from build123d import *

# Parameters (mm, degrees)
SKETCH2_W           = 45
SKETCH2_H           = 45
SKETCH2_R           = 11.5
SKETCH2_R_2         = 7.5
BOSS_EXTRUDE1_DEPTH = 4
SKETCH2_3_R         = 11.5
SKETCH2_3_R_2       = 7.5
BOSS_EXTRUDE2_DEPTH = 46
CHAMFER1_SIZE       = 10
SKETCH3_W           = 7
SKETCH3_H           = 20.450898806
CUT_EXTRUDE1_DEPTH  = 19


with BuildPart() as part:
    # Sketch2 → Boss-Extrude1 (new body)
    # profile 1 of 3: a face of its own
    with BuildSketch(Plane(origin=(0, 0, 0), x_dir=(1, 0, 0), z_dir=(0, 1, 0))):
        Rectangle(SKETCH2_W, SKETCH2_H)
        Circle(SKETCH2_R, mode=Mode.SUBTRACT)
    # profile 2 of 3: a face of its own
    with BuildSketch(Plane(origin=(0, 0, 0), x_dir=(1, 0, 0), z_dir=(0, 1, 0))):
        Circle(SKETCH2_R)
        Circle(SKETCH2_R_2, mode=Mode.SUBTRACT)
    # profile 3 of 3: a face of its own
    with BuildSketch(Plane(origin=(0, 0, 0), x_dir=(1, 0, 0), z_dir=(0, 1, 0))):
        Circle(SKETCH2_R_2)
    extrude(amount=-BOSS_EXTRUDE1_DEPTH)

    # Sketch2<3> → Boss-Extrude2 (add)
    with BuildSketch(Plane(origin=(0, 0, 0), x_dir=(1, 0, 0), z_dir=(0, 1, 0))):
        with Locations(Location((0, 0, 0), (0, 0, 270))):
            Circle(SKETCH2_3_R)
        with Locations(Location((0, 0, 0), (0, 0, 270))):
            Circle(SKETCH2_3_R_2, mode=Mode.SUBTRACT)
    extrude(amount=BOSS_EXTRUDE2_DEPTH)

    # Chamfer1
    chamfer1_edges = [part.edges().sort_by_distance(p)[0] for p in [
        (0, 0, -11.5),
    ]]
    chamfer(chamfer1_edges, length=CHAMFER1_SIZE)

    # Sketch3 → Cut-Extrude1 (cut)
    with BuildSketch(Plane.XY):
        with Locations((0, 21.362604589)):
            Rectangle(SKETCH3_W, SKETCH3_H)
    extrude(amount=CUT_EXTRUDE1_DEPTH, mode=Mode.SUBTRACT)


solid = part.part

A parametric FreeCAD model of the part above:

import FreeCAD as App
import Part
import Sketcher
from FreeCAD import Vector
Q = App.Units.Quantity


def edges_at(feature, points):
    """Names of the edges that pass closest to the given points."""
    edges = feature.Shape.Edges
    near = lambda p: min(range(len(edges)), key=lambda i: edges[i].distToShape(Part.Vertex(*p))[0])
    return sorted({f"Edge{near(p) + 1}" for p in points})

doc = App.newDocument("Part")
body = doc.addObject("PartDesign::Body", "Body")

sketch1 = body.newObject("Sketcher::SketchObject", "Sketch")
sketch1.AttachmentSupport = (doc.getObject("XZ_Plane"), [""])
sketch1.MapMode = "FlatFace"
sketch1.addGeometry([
    Part.LineSegment(Vector(-22, -22, 0), Vector(-22, 22, 0)),
    Part.LineSegment(Vector(-22, 22, 0), Vector(22, 22, 0)),
    Part.LineSegment(Vector(22, 22, 0), Vector(22, -22, 0)),
    Part.LineSegment(Vector(22, -22, 0), Vector(-22, -22, 0)),
], False)
sketch1.addConstraint([
    Sketcher.Constraint("Coincident", 0, 2, 1, 1),
    Sketcher.Constraint("Coincident", 1, 2, 2, 1),
    Sketcher.Constraint("Coincident", 2, 2, 3, 1),
    Sketcher.Constraint("Coincident", 3, 2, 0, 1),
    Sketcher.Constraint("Vertical", 0),
    Sketcher.Constraint("Horizontal", 1),
    Sketcher.Constraint("Vertical", 2),
    Sketcher.Constraint("Horizontal", 3),
    Sketcher.Constraint("Symmetric", 0, 2, 2, 2, -1, 1),
    Sketcher.Constraint("Equal", 3, 0),
    Sketcher.Constraint("DistanceX", 1, 1, 1, 2, Q("45 mm")),
])
pad1 = body.newObject("PartDesign::Pad", "Pad")
pad1.Profile = sketch1
pad1.Length = 4

sketch2 = body.newObject("Sketcher::SketchObject", "Sketch001")
sketch2.AttachmentSupport = (doc.getObject("XZ_Plane"), [""])
sketch2.MapMode = "FlatFace"
sketch2.addGeometry([
    Part.Circle(Vector(0, 0, 0), Vector(0, 0, 1), 12),
    Part.Circle(Vector(0, 0, 0), Vector(0, 0, 1), 8),
], False)
sketch2.addConstraint([
    Sketcher.Constraint("Coincident", 0, 3, -1, 1),
    Sketcher.Constraint("Coincident", 1, 3, -1, 1),
    Sketcher.Constraint("Diameter", 0, Q("23 mm")),
    Sketcher.Constraint("Diameter", 1, Q("15 mm")),
])
pad2 = body.newObject("PartDesign::Pad", "Pad001")
pad2.Profile = sketch2
pad2.Length = 46
pad2.Reversed = True
doc.recompute()

chamfer = body.newObject("PartDesign::Chamfer", "Chamfer")
chamfer.Base = (pad2, edges_at(pad2, [(0, 0, -11.5)]))
chamfer.Size = 10

sketch3 = body.newObject("Sketcher::SketchObject", "Sketch002")
sketch3.AttachmentSupport = (doc.getObject("XY_Plane"), [""])
sketch3.MapMode = "FlatFace"
sketch3.addGeometry([
    Part.LineSegment(Vector(-4, 32, 0), Vector(-4, 11, 0)),
    Part.LineSegment(Vector(-4, 11, 0), Vector(4, 11, 0)),
    Part.LineSegment(Vector(4, 11, 0), Vector(4, 32, 0)),
    Part.LineSegment(Vector(4, 32, 0), Vector(-4, 32, 0)),
], False)
sketch3.addConstraint([
    Sketcher.Constraint("Coincident", 0, 2, 1, 1),
    Sketcher.Constraint("Coincident", 1, 2, 2, 1),
    Sketcher.Constraint("Coincident", 2, 2, 3, 1),
    Sketcher.Constraint("Coincident", 3, 2, 0, 1),
    Sketcher.Constraint("Vertical", 0),
    Sketcher.Constraint("Horizontal", 1),
    Sketcher.Constraint("Vertical", 2),
    Sketcher.Constraint("Horizontal", 3),
    Sketcher.Constraint("DistanceX", 1, 1, 1, 2, Q("7 mm")),
    Sketcher.Constraint("DistanceX", 0, 2, -1, 1, Q("3.5 mm")),
    Sketcher.Constraint("DistanceY", 0, 2, 0, 1, Q("20.450899 mm")),
    Sketcher.Constraint("DistanceY", -1, 1, 0, 2, Q("11.137155 mm")),
])
pocket1 = body.newObject("PartDesign::Pocket", "Pocket")
pocket1.Profile = sketch3
pocket1.Length = 19
pocket1.Reversed = True

doc.recompute()
